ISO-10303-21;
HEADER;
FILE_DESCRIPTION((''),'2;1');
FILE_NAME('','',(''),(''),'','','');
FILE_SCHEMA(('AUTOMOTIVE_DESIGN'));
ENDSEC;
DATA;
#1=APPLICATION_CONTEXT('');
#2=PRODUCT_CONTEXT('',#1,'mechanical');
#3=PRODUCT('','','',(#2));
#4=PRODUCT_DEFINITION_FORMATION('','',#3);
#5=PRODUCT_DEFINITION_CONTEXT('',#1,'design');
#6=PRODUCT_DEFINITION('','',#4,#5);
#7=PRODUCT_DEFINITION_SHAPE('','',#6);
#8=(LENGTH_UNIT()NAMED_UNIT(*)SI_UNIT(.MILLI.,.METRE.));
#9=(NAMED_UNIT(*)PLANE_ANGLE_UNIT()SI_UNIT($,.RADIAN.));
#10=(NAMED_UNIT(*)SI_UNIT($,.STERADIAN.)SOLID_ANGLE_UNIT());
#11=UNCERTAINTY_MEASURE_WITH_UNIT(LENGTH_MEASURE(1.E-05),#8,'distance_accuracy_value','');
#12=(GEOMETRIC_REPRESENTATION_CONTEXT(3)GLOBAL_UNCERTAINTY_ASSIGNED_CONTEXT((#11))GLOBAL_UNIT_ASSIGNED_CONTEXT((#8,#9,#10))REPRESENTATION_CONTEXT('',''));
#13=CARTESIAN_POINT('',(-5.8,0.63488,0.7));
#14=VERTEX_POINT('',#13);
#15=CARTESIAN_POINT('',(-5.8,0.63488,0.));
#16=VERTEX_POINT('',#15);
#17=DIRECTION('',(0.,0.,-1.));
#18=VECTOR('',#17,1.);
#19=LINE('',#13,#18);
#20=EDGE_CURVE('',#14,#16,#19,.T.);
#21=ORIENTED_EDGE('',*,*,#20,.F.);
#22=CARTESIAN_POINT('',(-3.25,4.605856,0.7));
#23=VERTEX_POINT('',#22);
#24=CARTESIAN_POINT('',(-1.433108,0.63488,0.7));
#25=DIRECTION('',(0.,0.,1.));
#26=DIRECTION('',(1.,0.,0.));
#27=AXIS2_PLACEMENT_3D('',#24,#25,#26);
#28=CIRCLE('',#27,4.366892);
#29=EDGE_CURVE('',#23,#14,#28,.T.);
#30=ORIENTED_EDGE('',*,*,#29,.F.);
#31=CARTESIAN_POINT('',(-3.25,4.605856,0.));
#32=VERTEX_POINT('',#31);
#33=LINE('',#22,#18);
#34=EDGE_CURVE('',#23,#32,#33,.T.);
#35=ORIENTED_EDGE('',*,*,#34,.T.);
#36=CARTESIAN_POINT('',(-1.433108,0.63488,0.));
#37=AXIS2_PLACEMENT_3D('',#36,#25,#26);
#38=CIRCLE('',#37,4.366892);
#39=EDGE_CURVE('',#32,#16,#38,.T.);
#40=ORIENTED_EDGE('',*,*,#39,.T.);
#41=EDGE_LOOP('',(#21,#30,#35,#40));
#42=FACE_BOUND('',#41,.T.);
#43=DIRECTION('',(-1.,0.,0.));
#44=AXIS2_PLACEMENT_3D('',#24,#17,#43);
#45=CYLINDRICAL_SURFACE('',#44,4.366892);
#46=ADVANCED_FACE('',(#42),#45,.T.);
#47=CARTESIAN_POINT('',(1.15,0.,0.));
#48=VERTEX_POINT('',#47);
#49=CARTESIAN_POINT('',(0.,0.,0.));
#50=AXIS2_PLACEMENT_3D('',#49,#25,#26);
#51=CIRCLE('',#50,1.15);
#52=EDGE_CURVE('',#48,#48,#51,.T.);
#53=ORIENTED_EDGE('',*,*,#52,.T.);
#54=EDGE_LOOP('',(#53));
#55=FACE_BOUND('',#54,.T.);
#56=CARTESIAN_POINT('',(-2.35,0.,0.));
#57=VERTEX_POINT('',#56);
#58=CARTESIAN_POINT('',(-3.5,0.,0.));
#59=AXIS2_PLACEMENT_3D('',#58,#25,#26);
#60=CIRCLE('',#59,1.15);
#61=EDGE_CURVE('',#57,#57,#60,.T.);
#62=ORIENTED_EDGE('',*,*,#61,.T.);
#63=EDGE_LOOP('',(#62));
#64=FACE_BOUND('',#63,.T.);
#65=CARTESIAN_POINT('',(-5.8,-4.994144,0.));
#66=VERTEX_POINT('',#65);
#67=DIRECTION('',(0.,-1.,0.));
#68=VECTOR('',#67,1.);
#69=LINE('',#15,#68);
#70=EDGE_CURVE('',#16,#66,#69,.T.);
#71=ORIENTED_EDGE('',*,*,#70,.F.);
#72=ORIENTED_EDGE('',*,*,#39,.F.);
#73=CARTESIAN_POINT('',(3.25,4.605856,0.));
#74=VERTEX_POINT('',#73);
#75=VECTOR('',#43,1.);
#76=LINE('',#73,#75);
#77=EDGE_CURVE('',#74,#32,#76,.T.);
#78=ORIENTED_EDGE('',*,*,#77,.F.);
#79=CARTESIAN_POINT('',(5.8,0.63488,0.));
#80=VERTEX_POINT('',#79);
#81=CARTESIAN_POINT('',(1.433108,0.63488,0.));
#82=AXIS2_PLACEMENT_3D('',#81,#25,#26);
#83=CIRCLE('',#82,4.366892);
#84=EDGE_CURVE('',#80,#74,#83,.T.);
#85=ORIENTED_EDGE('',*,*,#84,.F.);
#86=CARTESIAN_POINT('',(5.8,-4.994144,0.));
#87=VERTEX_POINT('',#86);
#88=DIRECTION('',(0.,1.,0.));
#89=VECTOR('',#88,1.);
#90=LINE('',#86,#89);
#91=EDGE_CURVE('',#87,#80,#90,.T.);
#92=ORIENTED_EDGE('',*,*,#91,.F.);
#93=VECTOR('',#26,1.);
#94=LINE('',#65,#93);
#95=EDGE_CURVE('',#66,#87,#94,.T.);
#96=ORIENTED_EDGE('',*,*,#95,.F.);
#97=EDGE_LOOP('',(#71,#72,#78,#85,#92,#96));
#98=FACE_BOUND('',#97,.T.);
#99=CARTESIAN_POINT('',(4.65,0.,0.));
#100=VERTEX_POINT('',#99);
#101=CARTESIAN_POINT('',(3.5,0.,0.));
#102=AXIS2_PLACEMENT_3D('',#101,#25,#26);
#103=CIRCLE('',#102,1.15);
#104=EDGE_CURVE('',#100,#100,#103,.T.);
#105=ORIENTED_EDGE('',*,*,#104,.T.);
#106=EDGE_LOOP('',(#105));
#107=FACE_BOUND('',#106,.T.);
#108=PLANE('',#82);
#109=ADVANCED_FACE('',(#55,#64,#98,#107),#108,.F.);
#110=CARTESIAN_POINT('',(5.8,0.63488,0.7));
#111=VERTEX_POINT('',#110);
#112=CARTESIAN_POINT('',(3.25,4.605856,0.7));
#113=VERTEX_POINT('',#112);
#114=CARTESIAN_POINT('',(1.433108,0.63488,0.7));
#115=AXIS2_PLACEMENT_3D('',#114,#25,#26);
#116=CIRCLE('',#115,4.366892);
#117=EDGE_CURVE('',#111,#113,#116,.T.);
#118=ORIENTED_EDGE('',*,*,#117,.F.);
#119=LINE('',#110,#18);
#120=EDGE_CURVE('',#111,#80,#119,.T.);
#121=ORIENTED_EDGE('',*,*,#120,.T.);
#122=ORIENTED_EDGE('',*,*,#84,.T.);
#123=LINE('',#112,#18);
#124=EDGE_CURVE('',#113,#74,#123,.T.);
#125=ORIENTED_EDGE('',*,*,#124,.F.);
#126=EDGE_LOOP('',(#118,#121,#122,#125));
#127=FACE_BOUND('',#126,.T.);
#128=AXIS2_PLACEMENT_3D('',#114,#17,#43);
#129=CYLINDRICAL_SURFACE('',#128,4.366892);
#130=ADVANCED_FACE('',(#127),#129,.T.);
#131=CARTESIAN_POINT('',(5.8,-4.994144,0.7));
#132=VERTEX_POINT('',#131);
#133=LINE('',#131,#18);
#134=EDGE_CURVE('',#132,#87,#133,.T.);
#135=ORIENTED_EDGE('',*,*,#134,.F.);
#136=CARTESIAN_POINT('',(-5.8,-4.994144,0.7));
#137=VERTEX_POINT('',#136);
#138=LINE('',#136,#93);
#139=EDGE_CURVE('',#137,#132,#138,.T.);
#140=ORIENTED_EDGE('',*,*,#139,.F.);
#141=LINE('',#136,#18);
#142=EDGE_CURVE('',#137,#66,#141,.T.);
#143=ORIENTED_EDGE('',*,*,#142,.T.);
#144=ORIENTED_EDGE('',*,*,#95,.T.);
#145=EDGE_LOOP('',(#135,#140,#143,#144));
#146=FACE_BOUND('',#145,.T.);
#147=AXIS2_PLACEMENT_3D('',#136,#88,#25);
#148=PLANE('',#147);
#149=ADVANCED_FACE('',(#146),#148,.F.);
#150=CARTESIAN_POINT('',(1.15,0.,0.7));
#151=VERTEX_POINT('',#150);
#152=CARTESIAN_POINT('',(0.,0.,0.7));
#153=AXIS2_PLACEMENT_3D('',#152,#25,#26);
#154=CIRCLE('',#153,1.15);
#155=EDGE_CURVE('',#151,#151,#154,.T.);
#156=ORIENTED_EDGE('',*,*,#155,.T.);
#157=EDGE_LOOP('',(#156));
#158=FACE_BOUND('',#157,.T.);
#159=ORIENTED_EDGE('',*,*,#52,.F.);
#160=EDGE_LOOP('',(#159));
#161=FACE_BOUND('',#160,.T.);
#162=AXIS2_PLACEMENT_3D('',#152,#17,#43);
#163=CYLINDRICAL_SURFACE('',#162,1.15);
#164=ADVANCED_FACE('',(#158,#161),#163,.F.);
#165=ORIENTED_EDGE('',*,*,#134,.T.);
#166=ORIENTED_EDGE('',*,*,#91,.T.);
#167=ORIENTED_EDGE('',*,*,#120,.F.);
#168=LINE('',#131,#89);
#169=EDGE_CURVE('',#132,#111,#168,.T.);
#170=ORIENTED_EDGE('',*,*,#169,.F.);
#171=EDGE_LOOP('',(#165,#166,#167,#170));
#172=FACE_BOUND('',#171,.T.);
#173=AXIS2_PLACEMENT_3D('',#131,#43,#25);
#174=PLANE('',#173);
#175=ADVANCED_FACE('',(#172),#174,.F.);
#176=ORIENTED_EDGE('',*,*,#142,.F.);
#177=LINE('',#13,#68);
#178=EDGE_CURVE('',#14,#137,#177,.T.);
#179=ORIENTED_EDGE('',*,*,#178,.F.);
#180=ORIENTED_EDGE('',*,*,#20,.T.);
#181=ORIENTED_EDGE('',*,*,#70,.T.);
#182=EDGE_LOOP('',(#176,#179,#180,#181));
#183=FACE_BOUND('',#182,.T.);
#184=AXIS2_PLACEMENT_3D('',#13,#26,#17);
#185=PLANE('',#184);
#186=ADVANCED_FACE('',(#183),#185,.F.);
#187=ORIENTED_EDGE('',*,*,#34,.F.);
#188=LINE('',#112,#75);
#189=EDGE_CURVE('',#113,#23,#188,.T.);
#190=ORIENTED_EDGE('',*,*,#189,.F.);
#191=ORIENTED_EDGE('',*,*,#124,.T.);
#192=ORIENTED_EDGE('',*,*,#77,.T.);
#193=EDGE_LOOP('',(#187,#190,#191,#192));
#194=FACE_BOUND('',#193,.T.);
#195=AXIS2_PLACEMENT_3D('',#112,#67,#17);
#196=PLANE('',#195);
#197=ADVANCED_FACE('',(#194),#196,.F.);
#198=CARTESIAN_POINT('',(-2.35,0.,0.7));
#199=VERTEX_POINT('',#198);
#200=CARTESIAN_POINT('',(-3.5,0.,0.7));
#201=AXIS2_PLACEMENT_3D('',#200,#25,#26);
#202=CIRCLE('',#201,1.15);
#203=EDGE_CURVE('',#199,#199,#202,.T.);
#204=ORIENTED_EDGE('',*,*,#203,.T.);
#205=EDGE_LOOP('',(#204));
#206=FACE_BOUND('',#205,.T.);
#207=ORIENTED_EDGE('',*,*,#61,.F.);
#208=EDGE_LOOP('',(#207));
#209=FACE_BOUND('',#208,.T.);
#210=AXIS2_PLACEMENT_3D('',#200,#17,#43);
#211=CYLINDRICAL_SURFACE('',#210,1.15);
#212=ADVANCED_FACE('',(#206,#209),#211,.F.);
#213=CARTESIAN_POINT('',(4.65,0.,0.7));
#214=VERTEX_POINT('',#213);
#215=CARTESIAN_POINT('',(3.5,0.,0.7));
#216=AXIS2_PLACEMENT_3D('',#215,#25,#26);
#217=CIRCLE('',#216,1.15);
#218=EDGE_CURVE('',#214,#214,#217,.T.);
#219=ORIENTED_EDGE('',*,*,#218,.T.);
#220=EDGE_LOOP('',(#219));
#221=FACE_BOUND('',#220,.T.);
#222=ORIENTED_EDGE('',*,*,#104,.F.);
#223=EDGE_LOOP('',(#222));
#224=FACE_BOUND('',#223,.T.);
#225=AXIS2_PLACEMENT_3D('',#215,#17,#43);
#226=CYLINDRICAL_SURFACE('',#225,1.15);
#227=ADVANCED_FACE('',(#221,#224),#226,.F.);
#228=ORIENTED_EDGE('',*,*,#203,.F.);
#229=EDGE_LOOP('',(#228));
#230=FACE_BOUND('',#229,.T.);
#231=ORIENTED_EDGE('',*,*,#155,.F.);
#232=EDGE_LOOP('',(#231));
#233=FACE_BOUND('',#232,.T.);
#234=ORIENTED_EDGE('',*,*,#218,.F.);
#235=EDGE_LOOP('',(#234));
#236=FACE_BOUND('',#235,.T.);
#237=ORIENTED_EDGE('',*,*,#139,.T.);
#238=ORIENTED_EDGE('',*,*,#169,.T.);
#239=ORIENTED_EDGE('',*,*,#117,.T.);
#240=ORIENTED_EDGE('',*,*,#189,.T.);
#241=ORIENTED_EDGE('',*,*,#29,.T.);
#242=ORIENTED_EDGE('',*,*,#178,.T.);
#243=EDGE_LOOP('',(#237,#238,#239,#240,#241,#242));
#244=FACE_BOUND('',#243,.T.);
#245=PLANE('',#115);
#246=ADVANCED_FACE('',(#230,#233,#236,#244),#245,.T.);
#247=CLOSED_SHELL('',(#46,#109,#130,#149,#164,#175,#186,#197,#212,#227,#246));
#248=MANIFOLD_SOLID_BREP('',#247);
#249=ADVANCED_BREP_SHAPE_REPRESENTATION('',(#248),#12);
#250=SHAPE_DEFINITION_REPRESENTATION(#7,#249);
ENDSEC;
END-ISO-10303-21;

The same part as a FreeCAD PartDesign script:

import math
import FreeCAD as App
import Part
import Sketcher
from FreeCAD import Vector
Q = App.Units.Quantity

doc = App.newDocument("Part")
body = doc.addObject("PartDesign::Body", "Body")

# Sketch on XY plane
sketch1 = doc.addObject("Sketcher::SketchObject", "Sketch")
body.addObject(sketch1)
sketch1.AttachmentSupport = (doc.XY_Plane, [""])
sketch1.MapMode = "FlatFace"
sketch1.addGeometry([
    Part.LineSegment(Vector(-5.8, -5, 0), Vector(5.8, -5, 0)),  # 0
    Part.LineSegment(Vector(5.8, -5, 0), Vector(5.8, 0.6, 0)),  # 1
    Part.ArcOfCircle(Part.Circle(Vector(1.4, 0.6, 0), Vector(0, 0, 1), 4.4), math.radians(0), math.radians(65)),  # 2
    Part.LineSegment(Vector(3.2, 4.6, 0), Vector(-3.2, 4.6, 0)),  # 3
    Part.ArcOfCircle(Part.Circle(Vector(-1.4, 0.6, 0), Vector(0, 0, 1), 4.4), math.radians(115), math.radians(180)),  # 4
    Part.LineSegment(Vector(-5.8, 0.6, 0), Vector(-5.8, -5, 0)),  # 5
    Part.Circle(Vector(-3.5, 0, 0), Vector(0, 0, 1), 1.1),  # 6
    Part.Circle(Vector(0, 0, 0), Vector(0, 0, 1), 1.1),  # 7
    Part.Circle(Vector(3.5, 0, 0), Vector(0, 0, 1), 1.1),  # 8
], False)
sketch1.addConstraint([
    Sketcher.Constraint("Coincident", 0, 2, 1, 1),
    Sketcher.Constraint("Tangent", 1, 2, 2, 1),
    Sketcher.Constraint("Coincident", 2, 2, 3, 1),
    Sketcher.Constraint("Coincident", 3, 2, 4, 1),
    Sketcher.Constraint("Tangent", 4, 2, 5, 1),
    Sketcher.Constraint("Coincident", 5, 2, 0, 1),
    Sketcher.Constraint("Horizontal", 0),
    Sketcher.Constraint("Vertical", 1),
    Sketcher.Constraint("Horizontal", 3),
    Sketcher.Constraint("Vertical", 5),
    Sketcher.Constraint("Coincident", 7, 3, -1, 1),
    Sketcher.Constraint("Equal", 2, 4),
    Sketcher.Constraint("Equal", 6, 7),
    Sketcher.Constraint("Equal", 7, 8),
    Sketcher.Constraint("Symmetric", 6, 3, 8, 3, -1, 1),
    Sketcher.Constraint("Symmetric", 2, 3, 4, 3, -2),
    Sketcher.Constraint("PointOnObject", 6, 3, -1),
    Sketcher.Constraint("Diameter", 6, Q("2.3 mm")),
    Sketcher.Constraint("DistanceX", 0, 1, 0, 2, Q("11.6 mm")),
    Sketcher.Constraint("DistanceX", 3, 2, 3, 1, Q("6.5 mm")),
    Sketcher.Constraint("DistanceX", 6, 3, 8, 3, Q("7 mm")),
    Sketcher.Constraint("Radius", 2, Q("4.366892 mm")),
    Sketcher.Constraint("DistanceY", 1, 1, 1, 2, Q("5.629024 mm")),
    Sketcher.Constraint("DistanceY", -1, 1, 2, 3, Q("0.63488 mm")),
])
pad1 = doc.addObject("PartDesign::Pad", "Pad")
body.addObject(pad1)
pad1.Profile = sketch1
pad1.Length = 0.7

doc.recompute()
